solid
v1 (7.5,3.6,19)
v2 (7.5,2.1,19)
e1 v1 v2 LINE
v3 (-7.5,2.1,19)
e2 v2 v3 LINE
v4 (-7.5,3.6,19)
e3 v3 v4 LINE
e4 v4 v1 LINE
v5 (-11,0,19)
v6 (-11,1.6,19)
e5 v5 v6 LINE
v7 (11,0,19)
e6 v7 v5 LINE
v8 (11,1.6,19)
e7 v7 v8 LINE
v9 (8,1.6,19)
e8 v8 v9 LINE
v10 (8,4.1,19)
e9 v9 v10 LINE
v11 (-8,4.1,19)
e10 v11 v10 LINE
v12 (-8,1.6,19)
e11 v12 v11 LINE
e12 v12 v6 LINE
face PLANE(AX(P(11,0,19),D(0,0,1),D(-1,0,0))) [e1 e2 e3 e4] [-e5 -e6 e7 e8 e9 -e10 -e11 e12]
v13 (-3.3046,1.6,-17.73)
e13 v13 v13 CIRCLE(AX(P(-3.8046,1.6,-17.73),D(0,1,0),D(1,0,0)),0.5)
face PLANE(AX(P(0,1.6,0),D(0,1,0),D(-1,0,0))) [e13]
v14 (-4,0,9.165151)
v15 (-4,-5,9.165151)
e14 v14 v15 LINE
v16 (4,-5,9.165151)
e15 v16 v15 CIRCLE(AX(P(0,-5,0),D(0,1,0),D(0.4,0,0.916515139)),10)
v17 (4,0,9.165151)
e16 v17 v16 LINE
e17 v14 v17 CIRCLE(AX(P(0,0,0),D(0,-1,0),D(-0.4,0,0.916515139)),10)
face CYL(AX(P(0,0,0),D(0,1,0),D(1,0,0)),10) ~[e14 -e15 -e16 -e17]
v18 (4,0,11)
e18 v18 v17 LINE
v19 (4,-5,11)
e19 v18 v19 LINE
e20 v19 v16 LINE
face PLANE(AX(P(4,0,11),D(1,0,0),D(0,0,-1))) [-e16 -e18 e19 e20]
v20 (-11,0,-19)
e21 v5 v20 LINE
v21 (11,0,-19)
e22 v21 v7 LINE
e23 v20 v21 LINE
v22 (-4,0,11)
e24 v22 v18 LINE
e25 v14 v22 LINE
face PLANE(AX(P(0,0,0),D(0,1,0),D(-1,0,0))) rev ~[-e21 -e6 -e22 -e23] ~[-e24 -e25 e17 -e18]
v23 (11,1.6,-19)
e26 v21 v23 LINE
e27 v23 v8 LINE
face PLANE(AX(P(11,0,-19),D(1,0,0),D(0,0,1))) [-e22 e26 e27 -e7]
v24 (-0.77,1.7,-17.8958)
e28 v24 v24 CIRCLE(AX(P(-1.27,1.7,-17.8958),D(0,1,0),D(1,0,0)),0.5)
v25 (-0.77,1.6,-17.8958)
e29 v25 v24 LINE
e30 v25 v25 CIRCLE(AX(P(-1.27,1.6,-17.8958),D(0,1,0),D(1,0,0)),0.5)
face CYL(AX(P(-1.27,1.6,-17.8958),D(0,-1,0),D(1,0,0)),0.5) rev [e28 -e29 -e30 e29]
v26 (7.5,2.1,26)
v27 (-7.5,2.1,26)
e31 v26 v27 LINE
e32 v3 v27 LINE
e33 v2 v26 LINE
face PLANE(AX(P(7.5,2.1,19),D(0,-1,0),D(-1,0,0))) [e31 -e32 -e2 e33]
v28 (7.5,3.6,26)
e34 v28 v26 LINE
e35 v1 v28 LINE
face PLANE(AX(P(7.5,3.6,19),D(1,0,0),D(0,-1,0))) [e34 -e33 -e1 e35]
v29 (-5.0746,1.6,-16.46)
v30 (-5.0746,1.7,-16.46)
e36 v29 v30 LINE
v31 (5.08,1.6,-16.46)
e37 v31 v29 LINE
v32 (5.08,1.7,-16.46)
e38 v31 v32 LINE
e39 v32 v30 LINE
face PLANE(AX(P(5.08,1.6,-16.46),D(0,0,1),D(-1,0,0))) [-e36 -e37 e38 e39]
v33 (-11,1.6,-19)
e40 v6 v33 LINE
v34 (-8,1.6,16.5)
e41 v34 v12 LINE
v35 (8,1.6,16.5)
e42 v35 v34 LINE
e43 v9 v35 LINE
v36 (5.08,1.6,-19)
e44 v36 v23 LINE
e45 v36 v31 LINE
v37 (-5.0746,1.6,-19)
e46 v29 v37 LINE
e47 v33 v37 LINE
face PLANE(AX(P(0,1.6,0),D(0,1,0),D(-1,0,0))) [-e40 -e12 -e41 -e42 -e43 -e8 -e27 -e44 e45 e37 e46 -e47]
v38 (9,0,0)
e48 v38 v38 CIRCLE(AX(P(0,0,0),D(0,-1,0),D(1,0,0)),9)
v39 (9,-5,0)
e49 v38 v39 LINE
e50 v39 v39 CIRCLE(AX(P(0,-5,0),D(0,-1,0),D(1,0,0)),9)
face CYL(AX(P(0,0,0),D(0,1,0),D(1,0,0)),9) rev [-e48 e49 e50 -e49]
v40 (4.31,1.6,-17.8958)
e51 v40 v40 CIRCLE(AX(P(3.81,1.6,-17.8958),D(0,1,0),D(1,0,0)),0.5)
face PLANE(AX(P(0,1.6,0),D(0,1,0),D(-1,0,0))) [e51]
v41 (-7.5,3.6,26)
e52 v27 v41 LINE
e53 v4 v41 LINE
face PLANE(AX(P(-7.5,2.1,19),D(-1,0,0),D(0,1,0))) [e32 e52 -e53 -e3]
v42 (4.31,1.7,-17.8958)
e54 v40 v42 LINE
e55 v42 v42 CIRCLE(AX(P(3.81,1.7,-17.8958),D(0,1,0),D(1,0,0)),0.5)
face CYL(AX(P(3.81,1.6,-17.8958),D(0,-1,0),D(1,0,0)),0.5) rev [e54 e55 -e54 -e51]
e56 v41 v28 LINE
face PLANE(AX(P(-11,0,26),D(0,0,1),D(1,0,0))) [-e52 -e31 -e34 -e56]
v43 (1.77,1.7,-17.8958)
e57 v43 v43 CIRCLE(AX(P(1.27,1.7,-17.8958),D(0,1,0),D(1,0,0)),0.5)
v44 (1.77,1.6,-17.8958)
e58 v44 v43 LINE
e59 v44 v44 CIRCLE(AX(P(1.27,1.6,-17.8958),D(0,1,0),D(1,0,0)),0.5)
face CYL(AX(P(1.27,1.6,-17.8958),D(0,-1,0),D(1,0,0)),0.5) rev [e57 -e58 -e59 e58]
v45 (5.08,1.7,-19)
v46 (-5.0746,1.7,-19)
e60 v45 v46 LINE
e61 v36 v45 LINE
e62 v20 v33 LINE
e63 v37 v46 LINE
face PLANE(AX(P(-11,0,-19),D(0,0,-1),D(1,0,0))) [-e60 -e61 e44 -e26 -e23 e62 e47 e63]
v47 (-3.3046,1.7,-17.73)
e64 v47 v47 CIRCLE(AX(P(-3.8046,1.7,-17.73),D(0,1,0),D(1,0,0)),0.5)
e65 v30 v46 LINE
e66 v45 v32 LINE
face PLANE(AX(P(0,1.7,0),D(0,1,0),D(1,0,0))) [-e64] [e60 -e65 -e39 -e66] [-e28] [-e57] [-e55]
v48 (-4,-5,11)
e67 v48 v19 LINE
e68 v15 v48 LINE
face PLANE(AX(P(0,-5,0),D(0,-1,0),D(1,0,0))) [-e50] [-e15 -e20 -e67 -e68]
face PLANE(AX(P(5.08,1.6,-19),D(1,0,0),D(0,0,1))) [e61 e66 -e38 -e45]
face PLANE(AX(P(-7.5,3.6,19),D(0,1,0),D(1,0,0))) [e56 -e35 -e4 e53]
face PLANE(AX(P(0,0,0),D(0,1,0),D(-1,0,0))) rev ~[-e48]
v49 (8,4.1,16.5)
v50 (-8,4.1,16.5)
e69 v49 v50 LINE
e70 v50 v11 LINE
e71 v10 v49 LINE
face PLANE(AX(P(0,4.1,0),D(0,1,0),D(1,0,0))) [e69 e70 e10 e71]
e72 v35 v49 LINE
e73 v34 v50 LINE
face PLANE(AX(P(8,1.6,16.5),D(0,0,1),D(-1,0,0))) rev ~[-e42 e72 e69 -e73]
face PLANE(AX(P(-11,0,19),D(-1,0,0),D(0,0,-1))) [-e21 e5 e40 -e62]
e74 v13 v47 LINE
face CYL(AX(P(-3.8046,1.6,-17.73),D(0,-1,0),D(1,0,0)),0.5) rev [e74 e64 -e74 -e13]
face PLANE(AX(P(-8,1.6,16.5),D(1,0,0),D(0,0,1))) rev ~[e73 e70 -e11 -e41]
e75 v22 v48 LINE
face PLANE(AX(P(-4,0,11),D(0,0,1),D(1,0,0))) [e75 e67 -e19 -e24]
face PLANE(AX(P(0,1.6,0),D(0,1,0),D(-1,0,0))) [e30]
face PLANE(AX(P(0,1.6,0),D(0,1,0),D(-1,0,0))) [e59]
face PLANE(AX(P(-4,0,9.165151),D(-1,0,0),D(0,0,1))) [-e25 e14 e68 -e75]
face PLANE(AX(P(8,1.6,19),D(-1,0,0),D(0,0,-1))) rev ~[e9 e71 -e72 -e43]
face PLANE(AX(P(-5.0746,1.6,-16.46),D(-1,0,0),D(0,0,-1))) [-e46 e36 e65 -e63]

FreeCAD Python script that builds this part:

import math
import FreeCAD as App
import Part
import Sketcher
Q = App.Units.Quantity

doc = App.newDocument("Part")
body = doc.addObject("PartDesign::Body", "Body")

# Sketch on XZ plane
sketch1 = body.newObject("Sketcher::SketchObject", "Sketch")
sketch1.AttachmentSupport = (doc.getObject("XZ_Plane"), [""])
sketch1.MapMode = "FlatFace"
sketch1.addGeometry([
    Part.LineSegment(App.Vector(11, -19, 0), App.Vector(-11, -19, 0)),
    Part.LineSegment(App.Vector(-11, -19, 0), App.Vector(-11, 19, 0)),
    Part.LineSegment(App.Vector(-11, 19, 0), App.Vector(11, 19, 0)),
    Part.LineSegment(App.Vector(11, 19, 0), App.Vector(11, -19, 0)),
], False)
sketch1.addConstraint([
    Sketcher.Constraint("Coincident", 0, 2, 1, 1),
    Sketcher.Constraint("Coincident", 1, 2, 2, 1),
    Sketcher.Constraint("Coincident", 2, 2, 3, 1),
    Sketcher.Constraint("Coincident", 3, 2, 0, 1),
    Sketcher.Constraint("Horizontal", 0),
    Sketcher.Constraint("Vertical", 1),
    Sketcher.Constraint("Horizontal", 2),
    Sketcher.Constraint("Vertical", 3),
    Sketcher.Constraint("Symmetric", 0, 2, 2, 2, -1, 1),
    Sketcher.Constraint("DistanceX", 0, 2, 0, 1, Q("22 mm")),
    Sketcher.Constraint("DistanceY", 1, 1, 1, 2, Q("38 mm")),
])
pad1 = body.newObject("PartDesign::Pad", "Pad")
pad1.Profile = sketch1
pad1.Length = 1.6
pad1.Reversed = True

# Sketch on XZ plane
sketch2 = body.newObject("Sketcher::SketchObject", "Sketch001")
sketch2.AttachmentSupport = (doc.getObject("XZ_Plane"), [""])
sketch2.MapMode = "FlatFace"
sketch2.addGeometry([
    Part.ArcOfCircle(Part.Circle(App.Vector(0, 0, 0), App.Vector(0, 0, 1), 10), math.radians(114), math.radians(426)),  # 0
    Part.LineSegment(App.Vector(4, 9.2, 0), App.Vector(4, 11, 0)),  # 1
    Part.LineSegment(App.Vector(4, 11, 0), App.Vector(-4, 11, 0)),  # 2
    Part.LineSegment(App.Vector(-4, 11, 0), App.Vector(-4, 9.2, 0)),  # 3
    Part.Circle(App.Vector(0, 0, 0), App.Vector(0, 0, 1), 9),  # 4
], False)
sketch2.addConstraint([
    Sketcher.Constraint("Coincident", 0, 2, 1, 1),
    Sketcher.Constraint("Coincident", 1, 2, 2, 1),
    Sketcher.Constraint("Coincident", 2, 2, 3, 1),
    Sketcher.Constraint("Coincident", 3, 2, 0, 1),
    Sketcher.Constraint("Vertical", 1),
    Sketcher.Constraint("Horizontal", 2),
    Sketcher.Constraint("Vertical", 3),
    Sketcher.Constraint("Coincident", 0, 3, -1, 1),
    Sketcher.Constraint("Coincident", 4, 3, -1, 1),
    Sketcher.Constraint("Horizontal", 0, 2, 3, 2),
    Sketcher.Constraint("Diameter", 4, Q("18 mm")),
    Sketcher.Constraint("Radius", 0, Q("10 mm")),
    Sketcher.Constraint("DistanceX", 2, 2, 2, 1, Q("8 mm")),
    Sketcher.Constraint("DistanceY", -1, 1, 1, 2, Q("11 mm")),
])
pad2 = body.newObject("PartDesign::Pad", "Pad001")
pad2.Profile = sketch2
pad2.Length = 5

# Sketch on XZ plane
sketch3 = body.newObject("Sketcher::SketchObject", "Sketch002")
sketch3.AttachmentSupport = (doc.getObject("XZ_Plane"), [""])
sketch3.MapMode = "FlatFace"
sketch3.AttachmentOffset = App.Placement(App.Vector(0, 0, -1.6), App.Rotation())
sketch3.addGeometry([
    Part.LineSegment(App.Vector(-8, 16.5, 0), App.Vector(-8, 19, 0)),
    Part.LineSegment(App.Vector(-8, 19, 0), App.Vector(8, 19, 0)),
    Part.LineSegment(App.Vector(8, 19, 0), App.Vector(8, 16.5, 0)),
    Part.LineSegment(App.Vector(8, 16.5, 0), App.Vector(-8, 16.5, 0)),
], False)
sketch3.addConstraint([
    Sketcher.Constraint("Coincident", 0, 2, 1, 1),
    Sketcher.Constraint("Coincident", 1, 2, 2, 1),
    Sketcher.Constraint("Coincident", 2, 2, 3, 1),
    Sketcher.Constraint("Coincident", 3, 2, 0, 1),
    Sketcher.Constraint("Vertical", 0),
    Sketcher.Constraint("Horizontal", 1),
    Sketcher.Constraint("Vertical", 2),
    Sketcher.Constraint("Horizontal", 3),
    Sketcher.Constraint("DistanceY", 0, 1, 0, 2, Q("2.5 mm")),
    Sketcher.Constraint("DistanceX", 1, 1, 1, 2, Q("16 mm")),
    Sketcher.Constraint("DistanceX", 0, 2, -1, 1, Q("8 mm")),
    Sketcher.Constraint("DistanceY", -1, 1, 0, 2, Q("19 mm")),
])
pad3 = body.newObject("PartDesign::Pad", "Pad002")
pad3.Profile = sketch3
pad3.Length = 2.5
pad3.Reversed = True

# Sketch on XZ plane
sketch4 = body.newObject("Sketcher::SketchObject", "Sketch003")
sketch4.AttachmentSupport = (doc.getObject("XZ_Plane"), [""])
sketch4.MapMode = "FlatFace"
sketch4.AttachmentOffset = App.Placement(App.Vector(0, 0, -1.6), App.Rotation())
sketch4.addGeometry([
    Part.LineSegment(App.Vector(5.1, -16.5, 0), App.Vector(5.1, -19, 0)),  # 0
    Part.LineSegment(App.Vector(5.1, -19, 0), App.Vector(-5.1, -19, 0)),  # 1
    Part.LineSegment(App.Vector(-5.1, -19, 0), App.Vector(-5.1, -16.5, 0)),  # 2
    Part.LineSegment(App.Vector(-5.1, -16.5, 0), App.Vector(5.1, -16.5, 0)),  # 3
    Part.Circle(App.Vector(-3.8, -17.7, 0), App.Vector(0, 0, 1), 0.5),  # 4
    Part.Circle(App.Vector(-1.3, -17.9, 0), App.Vector(0, 0, 1), 0.5),  # 5
    Part.Circle(App.Vector(1.3, -17.9, 0), App.Vector(0, 0, 1), 0.5),  # 6
    Part.Circle(App.Vector(3.8, -17.9, 0), App.Vector(0, 0, 1), 0.5),  # 7
], False)
sketch4.addConstraint([
    Sketcher.Constraint("Coincident", 0, 2, 1, 1),
    Sketcher.Constraint("Coincident", 1, 2, 2, 1),
    Sketcher.Constraint("Coincident", 2, 2, 3, 1),
    Sketcher.Constraint("Coincident", 3, 2, 0, 1),
    Sketcher.Constraint("Vertical", 0),
    Sketcher.Constraint("Horizontal", 1),
    Sketcher.Constraint("Vertical", 2),
    Sketcher.Constraint("Horizontal", 3),
    Sketcher.Constraint("Equal", 4, 5),
    Sketcher.Constraint("Equal", 5, 6),
    Sketcher.Constraint("Equal", 6, 7),
    Sketcher.Constraint("Symmetric", 5, 3, 6, 3, -2),
    Sketcher.Constraint("Horizontal", 6, 3, 7, 3),
    Sketcher.Constraint("Diameter", 4, Q("1 mm")),
    Sketcher.Constraint("DistanceY", 0, 2, 0, 1, Q("2.54 mm")),
    Sketcher.Constraint("DistanceX", 5, 3, -1, 1, Q("1.27 mm")),
    Sketcher.Constraint("DistanceX", 6, 3, 7, 3, Q("2.54 mm")),
    Sketcher.Constraint("DistanceX", 7, 3, 0, 2, Q("1.27 mm")),
    Sketcher.Constraint("DistanceY", 0, 2, 4, 3, Q("1.27 mm")),
    Sketcher.Constraint("DistanceX", 1, 2, 4, 3, Q("1.27 mm")),
    Sketcher.Constraint("DistanceY", 0, 2, -1, 1, Q("19 mm")),
    Sketcher.Constraint("DistanceX", 1, 2, 1, 1, Q("10.1546 mm")),
    Sketcher.Constraint("DistanceY", 5, 3, -1, 1, Q("17.8958 mm")),
])
pad4 = body.newObject("PartDesign::Pad", "Pad003")
pad4.Profile = sketch4
pad4.Length = 0.1
pad4.Reversed = True

# Sketch on XY plane
sketch5 = body.newObject("Sketcher::SketchObject", "Sketch004")
sketch5.AttachmentSupport = (doc.getObject("XY_Plane"), [""])
sketch5.MapMode = "FlatFace"
sketch5.AttachmentOffset = App.Placement(App.Vector(0, 0, 19), App.Rotation())
sketch5.addGeometry([
    Part.LineSegment(App.Vector(7.5, 3.6, 0), App.Vector(-7.5, 3.6, 0)),
    Part.LineSegment(App.Vector(-7.5, 3.6, 0), App.Vector(-7.5, 2.1, 0)),
    Part.LineSegment(App.Vector(-7.5, 2.1, 0), App.Vector(7.5, 2.1, 0)),
    Part.LineSegment(App.Vector(7.5, 2.1, 0), App.Vector(7.5, 3.6, 0)),
], False)
sketch5.addConstraint([
    Sketcher.Constraint("Coincident", 0, 2, 1, 1),
    Sketcher.Constraint("Coincident", 1, 2, 2, 1),
    Sketcher.Constraint("Coincident", 2, 2, 3, 1),
    Sketcher.Constraint("Coincident", 3, 2, 0, 1),
    Sketcher.Constraint("Horizontal", 0),
    Sketcher.Constraint("Vertical", 1),
    Sketcher.Constraint("Horizontal", 2),
    Sketcher.Constraint("Vertical", 3),
    Sketcher.Constraint("DistanceX", 0, 2, 0, 1, Q("15 mm")),
    Sketcher.Constraint("DistanceY", 1, 2, 1, 1, Q("1.5 mm")),
    Sketcher.Constraint("DistanceX", 0, 2, -1, 1, Q("7.5 mm")),
    Sketcher.Constraint("DistanceY", -1, 1, 0, 2, Q("3.6 mm")),
])
pad5 = body.newObject("PartDesign::Pad", "Pad004")
pad5.Profile = sketch5
pad5.Length = 7

doc.recompute()
